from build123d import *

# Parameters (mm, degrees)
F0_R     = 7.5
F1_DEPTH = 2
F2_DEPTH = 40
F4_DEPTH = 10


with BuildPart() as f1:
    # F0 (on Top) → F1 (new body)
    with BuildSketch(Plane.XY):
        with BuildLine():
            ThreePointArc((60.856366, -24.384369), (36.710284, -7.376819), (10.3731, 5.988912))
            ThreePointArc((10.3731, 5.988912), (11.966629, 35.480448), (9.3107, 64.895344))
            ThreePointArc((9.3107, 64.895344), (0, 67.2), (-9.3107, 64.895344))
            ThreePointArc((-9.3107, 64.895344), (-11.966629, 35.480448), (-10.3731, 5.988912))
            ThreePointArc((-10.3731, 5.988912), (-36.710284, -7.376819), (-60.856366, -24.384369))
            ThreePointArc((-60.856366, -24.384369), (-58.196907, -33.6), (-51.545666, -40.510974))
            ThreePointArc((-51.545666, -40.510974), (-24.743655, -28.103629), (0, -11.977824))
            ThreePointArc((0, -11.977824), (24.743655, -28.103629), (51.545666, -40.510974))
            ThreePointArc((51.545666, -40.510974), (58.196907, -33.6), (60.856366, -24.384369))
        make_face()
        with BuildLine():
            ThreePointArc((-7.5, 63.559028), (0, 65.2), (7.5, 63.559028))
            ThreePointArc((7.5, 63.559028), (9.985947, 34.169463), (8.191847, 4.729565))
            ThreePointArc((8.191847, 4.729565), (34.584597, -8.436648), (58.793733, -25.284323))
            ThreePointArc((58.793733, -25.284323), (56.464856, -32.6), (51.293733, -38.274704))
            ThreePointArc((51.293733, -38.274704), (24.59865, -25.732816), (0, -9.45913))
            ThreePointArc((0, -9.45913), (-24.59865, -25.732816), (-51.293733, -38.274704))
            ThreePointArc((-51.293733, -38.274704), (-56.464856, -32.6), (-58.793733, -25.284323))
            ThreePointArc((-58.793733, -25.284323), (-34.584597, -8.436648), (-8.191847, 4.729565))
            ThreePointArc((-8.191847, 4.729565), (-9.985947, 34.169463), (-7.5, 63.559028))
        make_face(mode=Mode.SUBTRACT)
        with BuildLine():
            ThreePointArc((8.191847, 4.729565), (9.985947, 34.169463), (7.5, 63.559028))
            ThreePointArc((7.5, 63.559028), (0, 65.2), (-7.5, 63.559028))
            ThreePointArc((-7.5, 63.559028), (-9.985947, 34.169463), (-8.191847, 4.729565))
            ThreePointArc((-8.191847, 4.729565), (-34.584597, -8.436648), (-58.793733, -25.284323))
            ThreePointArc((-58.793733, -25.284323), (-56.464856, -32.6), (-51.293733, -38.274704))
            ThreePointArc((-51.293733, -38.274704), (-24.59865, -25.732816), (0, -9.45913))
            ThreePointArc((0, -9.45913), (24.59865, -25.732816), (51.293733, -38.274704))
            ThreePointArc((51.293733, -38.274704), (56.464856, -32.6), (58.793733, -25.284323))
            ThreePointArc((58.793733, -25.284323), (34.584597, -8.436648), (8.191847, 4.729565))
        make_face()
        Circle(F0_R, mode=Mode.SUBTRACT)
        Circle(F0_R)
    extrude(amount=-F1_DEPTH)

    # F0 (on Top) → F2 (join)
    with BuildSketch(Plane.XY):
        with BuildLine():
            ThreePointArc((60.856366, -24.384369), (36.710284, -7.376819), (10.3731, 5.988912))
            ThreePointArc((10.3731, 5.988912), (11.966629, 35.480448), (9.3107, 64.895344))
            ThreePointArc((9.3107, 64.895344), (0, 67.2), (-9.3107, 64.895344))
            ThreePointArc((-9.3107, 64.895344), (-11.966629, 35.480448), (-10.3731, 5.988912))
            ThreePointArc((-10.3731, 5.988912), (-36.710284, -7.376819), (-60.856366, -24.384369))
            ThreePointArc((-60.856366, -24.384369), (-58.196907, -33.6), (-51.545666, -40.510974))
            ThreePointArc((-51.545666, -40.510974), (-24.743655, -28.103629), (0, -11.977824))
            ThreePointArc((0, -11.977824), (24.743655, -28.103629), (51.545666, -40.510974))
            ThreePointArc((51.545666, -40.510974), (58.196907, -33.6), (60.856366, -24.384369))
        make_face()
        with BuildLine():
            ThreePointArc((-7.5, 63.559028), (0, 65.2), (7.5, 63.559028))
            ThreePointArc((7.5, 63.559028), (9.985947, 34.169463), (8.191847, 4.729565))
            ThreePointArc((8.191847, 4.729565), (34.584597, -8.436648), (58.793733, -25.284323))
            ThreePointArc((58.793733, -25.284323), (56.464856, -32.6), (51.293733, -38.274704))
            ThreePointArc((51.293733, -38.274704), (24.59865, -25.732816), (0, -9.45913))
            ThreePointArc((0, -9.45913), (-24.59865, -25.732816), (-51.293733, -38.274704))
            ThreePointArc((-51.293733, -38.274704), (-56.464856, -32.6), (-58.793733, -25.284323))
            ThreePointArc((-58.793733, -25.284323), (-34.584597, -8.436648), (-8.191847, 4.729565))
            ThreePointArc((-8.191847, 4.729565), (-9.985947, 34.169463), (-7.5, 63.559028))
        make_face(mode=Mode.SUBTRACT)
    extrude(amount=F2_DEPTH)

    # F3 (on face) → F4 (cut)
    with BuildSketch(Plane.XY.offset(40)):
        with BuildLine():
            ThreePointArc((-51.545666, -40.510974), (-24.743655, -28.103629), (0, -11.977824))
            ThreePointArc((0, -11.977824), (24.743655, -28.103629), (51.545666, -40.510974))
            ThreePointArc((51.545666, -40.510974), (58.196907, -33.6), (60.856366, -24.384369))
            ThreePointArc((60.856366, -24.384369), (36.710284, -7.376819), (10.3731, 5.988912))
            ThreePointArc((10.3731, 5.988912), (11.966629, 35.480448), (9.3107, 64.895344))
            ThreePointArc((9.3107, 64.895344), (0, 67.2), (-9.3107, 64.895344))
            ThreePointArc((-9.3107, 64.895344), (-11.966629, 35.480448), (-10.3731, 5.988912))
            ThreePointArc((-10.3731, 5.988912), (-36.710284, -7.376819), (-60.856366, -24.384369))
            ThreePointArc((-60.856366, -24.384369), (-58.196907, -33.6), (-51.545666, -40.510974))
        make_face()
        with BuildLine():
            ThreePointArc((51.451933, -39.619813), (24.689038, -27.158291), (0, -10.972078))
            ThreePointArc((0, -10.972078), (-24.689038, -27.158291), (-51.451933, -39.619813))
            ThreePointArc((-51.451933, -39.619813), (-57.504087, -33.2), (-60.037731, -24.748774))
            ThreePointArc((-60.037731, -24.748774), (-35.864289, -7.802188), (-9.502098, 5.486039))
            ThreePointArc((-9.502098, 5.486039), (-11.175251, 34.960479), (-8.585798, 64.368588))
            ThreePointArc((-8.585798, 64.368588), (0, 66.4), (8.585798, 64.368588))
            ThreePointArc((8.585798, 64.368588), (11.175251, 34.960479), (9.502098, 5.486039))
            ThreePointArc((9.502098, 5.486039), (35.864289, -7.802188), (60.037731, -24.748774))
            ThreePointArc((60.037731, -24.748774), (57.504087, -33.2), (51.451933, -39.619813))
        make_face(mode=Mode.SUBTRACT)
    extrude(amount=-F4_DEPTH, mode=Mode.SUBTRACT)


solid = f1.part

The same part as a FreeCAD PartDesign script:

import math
import FreeCAD as App
import Part
import Sketcher
from FreeCAD import Vector

doc = App.newDocument("Part")
body = doc.addObject("PartDesign::Body", "Body")

sketch1 = body.newObject("Sketcher::SketchObject", "Sketch")
sketch1.AttachmentSupport = (doc.getObject("XY_Plane"), [""])
sketch1.MapMode = "FlatFace"
sketch1.addGeometry([
    Part.ArcOfCircle(Part.Circle(Vector(-69, -183, 0), Vector(0, 0, 1), 205), math.radians(50.71), math.radians(67.22)),
    Part.ArcOfCircle(Part.Circle(Vector(-193, 32, 0), Vector(0, 0, 1), 205), math.radians(-7.22), math.radians(9.29)),
    Part.ArcOfCircle(Part.Circle(Vector(0, 47, 0), Vector(0, 0, 1), 20), math.radians(62), math.radians(118)),
    Part.ArcOfCircle(Part.Circle(Vector(193, 32, 0), Vector(0, 0, 1), 205), math.radians(170.71), math.radians(187.22)),
    Part.ArcOfCircle(Part.Circle(Vector(69, -183, 0), Vector(0, 0, 1), 205), math.radians(112.78), math.radians(129.29)),
    Part.ArcOfCircle(Part.Circle(Vector(-41, -24, 0), Vector(0, 0, 1), 20), math.radians(-178), math.radians(-122)),
    Part.ArcOfCircle(Part.Circle(Vector(-124, 151, 0), Vector(0, 0, 1), 205), math.radians(-69.29), math.radians(-52.78)),
    Part.ArcOfCircle(Part.Circle(Vector(124, 151, 0), Vector(0, 0, 1), 205), math.radians(-127.22), math.radians(-110.71)),
    Part.ArcOfCircle(Part.Circle(Vector(41, -24, 0), Vector(0, 0, 1), 20), math.radians(-58), math.radians(-2)),
], False)
sketch1.addConstraint([
    Sketcher.Constraint("Coincident", 0, 2, 1, 1),
    Sketcher.Constraint("Coincident", 1, 2, 2, 1),
    Sketcher.Constraint("Coincident", 2, 2, 3, 1),
    Sketcher.Constraint("Coincident", 3, 2, 4, 1),
    Sketcher.Constraint("Coincident", 4, 2, 5, 1),
    Sketcher.Constraint("Coincident", 5, 2, 6, 1),
    Sketcher.Constraint("Coincident", 6, 2, 7, 1),
    Sketcher.Constraint("Coincident", 7, 2, 8, 1),
    Sketcher.Constraint("Coincident", 8, 2, 0, 1),
    Sketcher.Constraint("Equal", 1, 3),
    Sketcher.Constraint("Equal", 0, 4),
    Sketcher.Constraint("Equal", 6, 7),
    Sketcher.Constraint("Equal", 5, 8),
    Sketcher.Constraint("Symmetric", 1, 3, 3, 3, -2),
    Sketcher.Constraint("Symmetric", 0, 3, 4, 3, -2),
    Sketcher.Constraint("Symmetric", 6, 3, 7, 3, -2),
    Sketcher.Constraint("Symmetric", 5, 3, 8, 3, -2),
    Sketcher.Constraint("PointOnObject", 2, 3, -2),
    Sketcher.Constraint("Radius", 1, 205.237519),
    Sketcher.Constraint("Radius", 2, 19.959719),
    Sketcher.Constraint("Radius", 0, 205.237477),
    Sketcher.Constraint("Radius", 5, 19.959714),
    Sketcher.Constraint("Radius", 6, 205.237473),
    Sketcher.Constraint("DistanceX", 6, 3, -1, 1, 124.140602),
    Sketcher.Constraint("DistanceX", -1, 1, 0, 2, 10.3731),
    Sketcher.Constraint("DistanceX", -1, 1, 1, 2, 9.3107),
    Sketcher.Constraint("DistanceY", 0, 3, 2, 3, 230.478601),
    Sketcher.Constraint("DistanceY", 0, 2, 3, 3, 25.790601),
    Sketcher.Constraint("DistanceX", 4, 2, 5, 2, 9.3107),
    Sketcher.Constraint("DistanceY", 0, 3, -1, 1, 183.238321),
    Sketcher.Constraint("DistanceY", 4, 2, -1, 1, 24.384369),
    Sketcher.Constraint("DistanceY", 0, 3, 5, 3, 159.618178),
])
pad1 = body.newObject("PartDesign::Pad", "Pad")
pad1.Profile = sketch1
pad1.Length = 2
pad1.Reversed = True

sketch2 = body.newObject("Sketcher::SketchObject", "Sketch001")
sketch2.AttachmentSupport = (doc.getObject("XY_Plane"), [""])
sketch2.MapMode = "FlatFace"
sketch2.addGeometry([
    Part.ArcOfCircle(Part.Circle(Vector(-69, -183, 0), Vector(0, 0, 1), 205), math.radians(50.71), math.radians(67.22)),
    Part.ArcOfCircle(Part.Circle(Vector(-193, 32, 0), Vector(0, 0, 1), 205), math.radians(-7.22), math.radians(9.29)),
    Part.ArcOfCircle(Part.Circle(Vector(0, 47, 0), Vector(0, 0, 1), 20), math.radians(62), math.radians(118)),
    Part.ArcOfCircle(Part.Circle(Vector(193, 32, 0), Vector(0, 0, 1), 205), math.radians(170.71), math.radians(187.22)),
    Part.ArcOfCircle(Part.Circle(Vector(69, -183, 0), Vector(0, 0, 1), 205), math.radians(112.78), math.radians(129.29)),
    Part.ArcOfCircle(Part.Circle(Vector(-41, -24, 0), Vector(0, 0, 1), 20), math.radians(-178), math.radians(-122)),
    Part.ArcOfCircle(Part.Circle(Vector(-124, 151, 0), Vector(0, 0, 1), 205), math.radians(-69.29), math.radians(-52.78)),
    Part.ArcOfCircle(Part.Circle(Vector(124, 151, 0), Vector(0, 0, 1), 205), math.radians(-127.22), math.radians(-110.71)),
    Part.ArcOfCircle(Part.Circle(Vector(41, -24, 0), Vector(0, 0, 1), 20), math.radians(-58), math.radians(-2)),
    Part.ArcOfCircle(Part.Circle(Vector(193, 32, 0), Vector(0, 0, 1), 203), math.radians(171), math.radians(187.65)),
    Part.ArcOfCircle(Part.Circle(Vector(0, 47, 0), Vector(0, 0, 1), 18), math.radians(65), math.radians(115)),
    Part.ArcOfCircle(Part.Circle(Vector(-193, 32, 0), Vector(0, 0, 1), 203), math.radians(-7.65), math.radians(9)),
    Part.ArcOfCircle(Part.Circle(Vector(-69, -183, 0), Vector(0, 0, 1), 203), math.radians(51), math.radians(67.65)),
    Part.ArcOfCircle(Part.Circle(Vector(41, -24, 0), Vector(0, 0, 1), 18), math.radians(-55), math.radians(-5)),
    Part.ArcOfCircle(Part.Circle(Vector(124, 151, 0), Vector(0, 0, 1), 203), math.radians(-127.65), math.radians(-111)),
    Part.ArcOfCircle(Part.Circle(Vector(-124, 151, 0), Vector(0, 0, 1), 203), math.radians(-69), math.radians(-52.35)),
    Part.ArcOfCircle(Part.Circle(Vector(-41, -24, 0), Vector(0, 0, 1), 18), math.radians(-175), math.radians(-125)),
    Part.ArcOfCircle(Part.Circle(Vector(69, -183, 0), Vector(0, 0, 1), 203), math.radians(112.35), math.radians(129)),
], False)
sketch2.addConstraint([
    Sketcher.Constraint("Coincident", 0, 2, 1, 1),
    Sketcher.Constraint("Coincident", 1, 2, 2, 1),
    Sketcher.Constraint("Coincident", 2, 2, 3, 1),
    Sketcher.Constraint("Coincident", 3, 2, 4, 1),
    Sketcher.Constraint("Coincident", 4, 2, 5, 1),
    Sketcher.Constraint("Coincident", 5, 2, 6, 1),
    Sketcher.Constraint("Coincident", 6, 2, 7, 1),
    Sketcher.Constraint("Coincident", 7, 2, 8, 1),
    Sketcher.Constraint("Coincident", 8, 2, 0, 1),
    Sketcher.Constraint("Coincident", 9, 1, 10, 2),
    Sketcher.Constraint("Coincident", 10, 1, 11, 2),
    Sketcher.Constraint("Coincident", 11, 1, 12, 2),
    Sketcher.Constraint("Coincident", 12, 1, 13, 2),
    Sketcher.Constraint("Coincident", 13, 1, 14, 2),
    Sketcher.Constraint("Coincident", 14, 1, 15, 2),
    Sketcher.Constraint("Coincident", 15, 1, 16, 2),
    Sketcher.Constraint("Coincident", 16, 1, 17, 2),
    Sketcher.Constraint("Coincident", 17, 1, 9, 2),
    Sketcher.Constraint("Coincident", 10, 3, 2, 3),
    Sketcher.Constraint("Coincident", 13, 3, 8, 3),
    Sketcher.Constraint("Coincident", 16, 3, 5, 3),
    Sketcher.Constraint("Equal", 1, 3),
    Sketcher.Constraint("Equal", 0, 4),
    Sketcher.Constraint("Equal", 6, 7),
    Sketcher.Constraint("Equal", 5, 8),
    Sketcher.Constraint("Equal", 9, 11),
    Sketcher.Constraint("Equal", 10, 13),
    Sketcher.Constraint("Equal", 14, 15),
    Sketcher.Constraint("Equal", 13, 16),
    Sketcher.Constraint("Equal", 12, 17),
    Sketcher.Constraint("Symmetric", 1, 3, 3, 3, -2),
    Sketcher.Constraint("Symmetric", 0, 3, 4, 3, -2),
    Sketcher.Constraint("Symmetric", 6, 3, 7, 3, -2),
    Sketcher.Constraint("Symmetric", 5, 3, 8, 3, -2),
    Sketcher.Constraint("Symmetric", 9, 3, 11, 3, -2),
    Sketcher.Constraint("Symmetric", 14, 3, 15, 3, -2),
    Sketcher.Constraint("Symmetric", 12, 3, 17, 3, -2),
    Sketcher.Constraint("PointOnObject", 2, 3, -2),
    Sketcher.Constraint("Horizontal", 3, 3, 9, 3),
    Sketcher.Constraint("DistanceX", 9, 1, 10, 1, 15.0),
    Sketcher.Constraint("DistanceX", 13, 1, 12, 1, 7.5),
    Sketcher.Constraint("Radius", 1, 205.237519),
    Sketcher.Constraint("Radius", 2, 19.959719),
    Sketcher.Constraint("Radius", 10, 17.959718),
    Sketcher.Constraint("Radius", 12, 203.237569),
    Sketcher.Constraint("Radius", 0, 205.237477),
    Sketcher.Constraint("Radius", 5, 19.959714),
    Sketcher.Constraint("Radius", 6, 205.237473),
    Sketcher.Constraint("Radius", 9, 203.237553),
    Sketcher.Constraint("Radius", 14, 203.237487),
    Sketcher.Constraint("DistanceX", 6, 3, -1, 1, 124.140602),
    Sketcher.Constraint("DistanceY", 12, 3, -1, 1, 183.238401),
    Sketcher.Constraint("DistanceX", -1, 1, 0, 2, 10.3731),
    Sketcher.Constraint("DistanceX", -1, 1, 1, 2, 9.3107),
    Sketcher.Constraint("DistanceY", 0, 3, 2, 3, 230.478601),
    Sketcher.Constraint("DistanceX", 4, 2, 5, 2, 9.3107),
    Sketcher.Constraint("DistanceY", 0, 3, -1, 1, 183.238321),
    Sketcher.Constraint("DistanceX", 1, 3, -1, 1, 193.237519),
    Sketcher.Constraint("DistanceX", 12, 3, -1, 1, 69.096918),
    Sketcher.Constraint("DistanceY", 13, 3, -1, 1, 23.62014),
    Sketcher.Constraint("DistanceY", 4, 2, -1, 1, 24.384369),
    Sketcher.Constraint("DistanceY", 14, 1, -1, 1, 9.45913),
])
pad2 = body.newObject("PartDesign::Pad", "Pad001")
pad2.Profile = sketch2
pad2.Length = 40

sketch3 = body.newObject("Sketcher::SketchObject", "Sketch002")
sketch3.AttachmentSupport = (doc.getObject("XY_Plane"), [""])
sketch3.MapMode = "FlatFace"
sketch3.AttachmentOffset = App.Placement(Vector(0, 0, 40), App.Rotation())
sketch3.addGeometry([
    Part.ArcOfCircle(Part.Circle(Vector(-124, 151, 0), Vector(0, 0, 1), 205), math.radians(-69.29), math.radians(-52.78)),
    Part.ArcOfCircle(Part.Circle(Vector(124, 151, 0), Vector(0, 0, 1), 205), math.radians(-127.22), math.radians(-110.71)),
    Part.ArcOfCircle(Part.Circle(Vector(41, -24, 0), Vector(0, 0, 1), 20), math.radians(-58), math.radians(-2)),
    Part.ArcOfCircle(Part.Circle(Vector(-69, -183, 0), Vector(0, 0, 1), 205), math.radians(50.71), math.radians(67.22)),
    Part.ArcOfCircle(Part.Circle(Vector(-193, 32, 0), Vector(0, 0, 1), 205), math.radians(-7.22), math.radians(9.29)),
    Part.ArcOfCircle(Part.Circle(Vector(0, 47, 0), Vector(0, 0, 1), 20), math.radians(62), math.radians(118)),
    Part.ArcOfCircle(Part.Circle(Vector(193, 32, 0), Vector(0, 0, 1), 205), math.radians(170.71), math.radians(187.22)),
    Part.ArcOfCircle(Part.Circle(Vector(69, -183, 0), Vector(0, 0, 1), 205), math.radians(112.78), math.radians(129.29)),
    Part.ArcOfCircle(Part.Circle(Vector(-41, -24, 0), Vector(0, 0, 1), 20), math.radians(-178), math.radians(-122)),
    Part.ArcOfCircle(Part.Circle(Vector(41, -24, 0), Vector(0, 0, 1), 19), math.radians(-57), math.radians(-3)),
    Part.ArcOfCircle(Part.Circle(Vector(124, 151, 0), Vector(0, 0, 1), 204), math.radians(-127.39), math.radians(-110.83)),
    Part.ArcOfCircle(Part.Circle(Vector(-124, 151, 0), Vector(0, 0, 1), 204), math.radians(-69.17), math.radians(-52.61)),
    Part.ArcOfCircle(Part.Circle(Vector(-41, -24, 0), Vector(0, 0, 1), 19), math.radians(-177), math.radians(-123)),
    Part.ArcOfCircle(Part.Circle(Vector(69, -183, 0), Vector(0, 0, 1), 204), math.radians(112.61), math.radians(129.17)),
    Part.ArcOfCircle(Part.Circle(Vector(193, 32, 0), Vector(0, 0, 1), 204), math.radians(170.83), math.radians(187.39)),
    Part.ArcOfCircle(Part.Circle(Vector(0, 47, 0), Vector(0, 0, 1), 19), math.radians(63), math.radians(117)),
    Part.ArcOfCircle(Part.Circle(Vector(-193, 32, 0), Vector(0, 0, 1), 204), math.radians(-7.39), math.radians(9.17)),
    Part.ArcOfCircle(Part.Circle(Vector(-69, -183, 0), Vector(0, 0, 1), 204), math.radians(50.83), math.radians(67.39)),
], False)
sketch3.addConstraint([
    Sketcher.Constraint("Coincident", 0, 2, 1, 1),
    Sketcher.Constraint("Coincident", 1, 2, 2, 1),
    Sketcher.Constraint("Coincident", 2, 2, 3, 1),
    Sketcher.Constraint("Coincident", 3, 2, 4, 1),
    Sketcher.Constraint("Coincident", 4, 2, 5, 1),
    Sketcher.Constraint("Coincident", 5, 2, 6, 1),
    Sketcher.Constraint("Coincident", 6, 2, 7, 1),
    Sketcher.Constraint("Coincident", 7, 2, 8, 1),
    Sketcher.Constraint("Coincident", 8, 2, 0, 1),
    Sketcher.Constraint("Coincident", 9, 1, 10, 2),
    Sketcher.Constraint("Coincident", 10, 1, 11, 2),
    Sketcher.Constraint("Coincident", 11, 1, 12, 2),
    Sketcher.Constraint("Coincident", 12, 1, 13, 2),
    Sketcher.Constraint("Coincident", 13, 1, 14, 2),
    Sketcher.Constraint("Coincident", 14, 1, 15, 2),
    Sketcher.Constraint("Coincident", 15, 1, 16, 2),
    Sketcher.Constraint("Coincident", 16, 1, 17, 2),
    Sketcher.Constraint("Coincident", 17, 1, 9, 2),
    Sketcher.Constraint("Coincident", 9, 3, 2, 3),
    Sketcher.Constraint("Coincident", 12, 3, 8, 3),
    Sketcher.Constraint("Coincident", 14, 3, 6, 3),
    Sketcher.Constraint("Coincident", 15, 3, 5, 3),
    Sketcher.Constraint("Coincident", 16, 3, 4, 3),
    Sketcher.Constraint("Equal", 0, 1),
    Sketcher.Constraint("Equal", 4, 6),
    Sketcher.Constraint("Equal", 3, 7),
    Sketcher.Constraint("Equal", 2, 8),
    Sketcher.Constraint("Equal", 10, 11),
    Sketcher.Constraint("Equal", 9, 12),
    Sketcher.Constraint("Equal", 14, 16),
    Sketcher.Constraint("Equal", 13, 17),
    Sketcher.Constraint("Symmetric", 0, 3, 1, 3, -2),
    Sketcher.Constraint("Symmetric", 4, 3, 6, 3, -2),
    Sketcher.Constraint("Symmetric", 3, 3, 7, 3, -2),
    Sketcher.Constraint("Symmetric", 2, 3, 8, 3, -2),
    Sketcher.Constraint("Symmetric", 10, 3, 11, 3, -2),
    Sketcher.Constraint("Symmetric", 13, 3, 17, 3, -2),
    Sketcher.Constraint("PointOnObject", 5, 3, -2),
    Sketcher.Constraint("Radius", 13, 204.437499),
    Sketcher.Constraint("Radius", 4, 205.237519),
    Sketcher.Constraint("Radius", 5, 19.959719),
    Sketcher.Constraint("Radius", 14, 204.437519),
    Sketcher.Constraint("Radius", 0, 205.237473),
    Sketcher.Constraint("Radius", 2, 19.959714),
    Sketcher.Constraint("Radius", 3, 205.237477),
    Sketcher.Constraint("Radius", 9, 19.159713),
    Sketcher.Constraint("Radius", 10, 204.437537),
    Sketcher.Constraint("Radius", 15, 19.159718),
    Sketcher.Constraint("DistanceX", 0, 3, -1, 1, 124.140602),
    Sketcher.Constraint("DistanceX", -1, 1, 3, 2, 10.3731),
    Sketcher.Constraint("DistanceX", -1, 1, 4, 2, 9.3107),
    Sketcher.Constraint("DistanceX", -1, 1, 16, 1, 9.502098),
    Sketcher.Constraint("DistanceY", 3, 3, 5, 3, 230.478601),
    Sketcher.Constraint("DistanceX", 1, 2, 2, 2, 9.3107),
    Sketcher.Constraint("DistanceY", 8, 2, 12, 1, 15.7622),
    Sketcher.Constraint("DistanceX", 9, 1, 17, 1, 8.585798),
    Sketcher.Constraint("DistanceY", 3, 3, -1, 1, 183.238321),
    Sketcher.Constraint("DistanceX", 4, 3, -1, 1, 193.237519),
    Sketcher.Constraint("DistanceX", -1, 1, 9, 3, 40.911289),
    Sketcher.Constraint("DistanceY", -1, 1, 10, 3, 151.458861),
    Sketcher.Constraint("DistanceY", 13, 3, -1, 1, 183.23834),
])
pocket1 = body.newObject("PartDesign::Pocket", "Pocket")
pocket1.Profile = sketch3
pocket1.Length = 10

doc.recompute()
